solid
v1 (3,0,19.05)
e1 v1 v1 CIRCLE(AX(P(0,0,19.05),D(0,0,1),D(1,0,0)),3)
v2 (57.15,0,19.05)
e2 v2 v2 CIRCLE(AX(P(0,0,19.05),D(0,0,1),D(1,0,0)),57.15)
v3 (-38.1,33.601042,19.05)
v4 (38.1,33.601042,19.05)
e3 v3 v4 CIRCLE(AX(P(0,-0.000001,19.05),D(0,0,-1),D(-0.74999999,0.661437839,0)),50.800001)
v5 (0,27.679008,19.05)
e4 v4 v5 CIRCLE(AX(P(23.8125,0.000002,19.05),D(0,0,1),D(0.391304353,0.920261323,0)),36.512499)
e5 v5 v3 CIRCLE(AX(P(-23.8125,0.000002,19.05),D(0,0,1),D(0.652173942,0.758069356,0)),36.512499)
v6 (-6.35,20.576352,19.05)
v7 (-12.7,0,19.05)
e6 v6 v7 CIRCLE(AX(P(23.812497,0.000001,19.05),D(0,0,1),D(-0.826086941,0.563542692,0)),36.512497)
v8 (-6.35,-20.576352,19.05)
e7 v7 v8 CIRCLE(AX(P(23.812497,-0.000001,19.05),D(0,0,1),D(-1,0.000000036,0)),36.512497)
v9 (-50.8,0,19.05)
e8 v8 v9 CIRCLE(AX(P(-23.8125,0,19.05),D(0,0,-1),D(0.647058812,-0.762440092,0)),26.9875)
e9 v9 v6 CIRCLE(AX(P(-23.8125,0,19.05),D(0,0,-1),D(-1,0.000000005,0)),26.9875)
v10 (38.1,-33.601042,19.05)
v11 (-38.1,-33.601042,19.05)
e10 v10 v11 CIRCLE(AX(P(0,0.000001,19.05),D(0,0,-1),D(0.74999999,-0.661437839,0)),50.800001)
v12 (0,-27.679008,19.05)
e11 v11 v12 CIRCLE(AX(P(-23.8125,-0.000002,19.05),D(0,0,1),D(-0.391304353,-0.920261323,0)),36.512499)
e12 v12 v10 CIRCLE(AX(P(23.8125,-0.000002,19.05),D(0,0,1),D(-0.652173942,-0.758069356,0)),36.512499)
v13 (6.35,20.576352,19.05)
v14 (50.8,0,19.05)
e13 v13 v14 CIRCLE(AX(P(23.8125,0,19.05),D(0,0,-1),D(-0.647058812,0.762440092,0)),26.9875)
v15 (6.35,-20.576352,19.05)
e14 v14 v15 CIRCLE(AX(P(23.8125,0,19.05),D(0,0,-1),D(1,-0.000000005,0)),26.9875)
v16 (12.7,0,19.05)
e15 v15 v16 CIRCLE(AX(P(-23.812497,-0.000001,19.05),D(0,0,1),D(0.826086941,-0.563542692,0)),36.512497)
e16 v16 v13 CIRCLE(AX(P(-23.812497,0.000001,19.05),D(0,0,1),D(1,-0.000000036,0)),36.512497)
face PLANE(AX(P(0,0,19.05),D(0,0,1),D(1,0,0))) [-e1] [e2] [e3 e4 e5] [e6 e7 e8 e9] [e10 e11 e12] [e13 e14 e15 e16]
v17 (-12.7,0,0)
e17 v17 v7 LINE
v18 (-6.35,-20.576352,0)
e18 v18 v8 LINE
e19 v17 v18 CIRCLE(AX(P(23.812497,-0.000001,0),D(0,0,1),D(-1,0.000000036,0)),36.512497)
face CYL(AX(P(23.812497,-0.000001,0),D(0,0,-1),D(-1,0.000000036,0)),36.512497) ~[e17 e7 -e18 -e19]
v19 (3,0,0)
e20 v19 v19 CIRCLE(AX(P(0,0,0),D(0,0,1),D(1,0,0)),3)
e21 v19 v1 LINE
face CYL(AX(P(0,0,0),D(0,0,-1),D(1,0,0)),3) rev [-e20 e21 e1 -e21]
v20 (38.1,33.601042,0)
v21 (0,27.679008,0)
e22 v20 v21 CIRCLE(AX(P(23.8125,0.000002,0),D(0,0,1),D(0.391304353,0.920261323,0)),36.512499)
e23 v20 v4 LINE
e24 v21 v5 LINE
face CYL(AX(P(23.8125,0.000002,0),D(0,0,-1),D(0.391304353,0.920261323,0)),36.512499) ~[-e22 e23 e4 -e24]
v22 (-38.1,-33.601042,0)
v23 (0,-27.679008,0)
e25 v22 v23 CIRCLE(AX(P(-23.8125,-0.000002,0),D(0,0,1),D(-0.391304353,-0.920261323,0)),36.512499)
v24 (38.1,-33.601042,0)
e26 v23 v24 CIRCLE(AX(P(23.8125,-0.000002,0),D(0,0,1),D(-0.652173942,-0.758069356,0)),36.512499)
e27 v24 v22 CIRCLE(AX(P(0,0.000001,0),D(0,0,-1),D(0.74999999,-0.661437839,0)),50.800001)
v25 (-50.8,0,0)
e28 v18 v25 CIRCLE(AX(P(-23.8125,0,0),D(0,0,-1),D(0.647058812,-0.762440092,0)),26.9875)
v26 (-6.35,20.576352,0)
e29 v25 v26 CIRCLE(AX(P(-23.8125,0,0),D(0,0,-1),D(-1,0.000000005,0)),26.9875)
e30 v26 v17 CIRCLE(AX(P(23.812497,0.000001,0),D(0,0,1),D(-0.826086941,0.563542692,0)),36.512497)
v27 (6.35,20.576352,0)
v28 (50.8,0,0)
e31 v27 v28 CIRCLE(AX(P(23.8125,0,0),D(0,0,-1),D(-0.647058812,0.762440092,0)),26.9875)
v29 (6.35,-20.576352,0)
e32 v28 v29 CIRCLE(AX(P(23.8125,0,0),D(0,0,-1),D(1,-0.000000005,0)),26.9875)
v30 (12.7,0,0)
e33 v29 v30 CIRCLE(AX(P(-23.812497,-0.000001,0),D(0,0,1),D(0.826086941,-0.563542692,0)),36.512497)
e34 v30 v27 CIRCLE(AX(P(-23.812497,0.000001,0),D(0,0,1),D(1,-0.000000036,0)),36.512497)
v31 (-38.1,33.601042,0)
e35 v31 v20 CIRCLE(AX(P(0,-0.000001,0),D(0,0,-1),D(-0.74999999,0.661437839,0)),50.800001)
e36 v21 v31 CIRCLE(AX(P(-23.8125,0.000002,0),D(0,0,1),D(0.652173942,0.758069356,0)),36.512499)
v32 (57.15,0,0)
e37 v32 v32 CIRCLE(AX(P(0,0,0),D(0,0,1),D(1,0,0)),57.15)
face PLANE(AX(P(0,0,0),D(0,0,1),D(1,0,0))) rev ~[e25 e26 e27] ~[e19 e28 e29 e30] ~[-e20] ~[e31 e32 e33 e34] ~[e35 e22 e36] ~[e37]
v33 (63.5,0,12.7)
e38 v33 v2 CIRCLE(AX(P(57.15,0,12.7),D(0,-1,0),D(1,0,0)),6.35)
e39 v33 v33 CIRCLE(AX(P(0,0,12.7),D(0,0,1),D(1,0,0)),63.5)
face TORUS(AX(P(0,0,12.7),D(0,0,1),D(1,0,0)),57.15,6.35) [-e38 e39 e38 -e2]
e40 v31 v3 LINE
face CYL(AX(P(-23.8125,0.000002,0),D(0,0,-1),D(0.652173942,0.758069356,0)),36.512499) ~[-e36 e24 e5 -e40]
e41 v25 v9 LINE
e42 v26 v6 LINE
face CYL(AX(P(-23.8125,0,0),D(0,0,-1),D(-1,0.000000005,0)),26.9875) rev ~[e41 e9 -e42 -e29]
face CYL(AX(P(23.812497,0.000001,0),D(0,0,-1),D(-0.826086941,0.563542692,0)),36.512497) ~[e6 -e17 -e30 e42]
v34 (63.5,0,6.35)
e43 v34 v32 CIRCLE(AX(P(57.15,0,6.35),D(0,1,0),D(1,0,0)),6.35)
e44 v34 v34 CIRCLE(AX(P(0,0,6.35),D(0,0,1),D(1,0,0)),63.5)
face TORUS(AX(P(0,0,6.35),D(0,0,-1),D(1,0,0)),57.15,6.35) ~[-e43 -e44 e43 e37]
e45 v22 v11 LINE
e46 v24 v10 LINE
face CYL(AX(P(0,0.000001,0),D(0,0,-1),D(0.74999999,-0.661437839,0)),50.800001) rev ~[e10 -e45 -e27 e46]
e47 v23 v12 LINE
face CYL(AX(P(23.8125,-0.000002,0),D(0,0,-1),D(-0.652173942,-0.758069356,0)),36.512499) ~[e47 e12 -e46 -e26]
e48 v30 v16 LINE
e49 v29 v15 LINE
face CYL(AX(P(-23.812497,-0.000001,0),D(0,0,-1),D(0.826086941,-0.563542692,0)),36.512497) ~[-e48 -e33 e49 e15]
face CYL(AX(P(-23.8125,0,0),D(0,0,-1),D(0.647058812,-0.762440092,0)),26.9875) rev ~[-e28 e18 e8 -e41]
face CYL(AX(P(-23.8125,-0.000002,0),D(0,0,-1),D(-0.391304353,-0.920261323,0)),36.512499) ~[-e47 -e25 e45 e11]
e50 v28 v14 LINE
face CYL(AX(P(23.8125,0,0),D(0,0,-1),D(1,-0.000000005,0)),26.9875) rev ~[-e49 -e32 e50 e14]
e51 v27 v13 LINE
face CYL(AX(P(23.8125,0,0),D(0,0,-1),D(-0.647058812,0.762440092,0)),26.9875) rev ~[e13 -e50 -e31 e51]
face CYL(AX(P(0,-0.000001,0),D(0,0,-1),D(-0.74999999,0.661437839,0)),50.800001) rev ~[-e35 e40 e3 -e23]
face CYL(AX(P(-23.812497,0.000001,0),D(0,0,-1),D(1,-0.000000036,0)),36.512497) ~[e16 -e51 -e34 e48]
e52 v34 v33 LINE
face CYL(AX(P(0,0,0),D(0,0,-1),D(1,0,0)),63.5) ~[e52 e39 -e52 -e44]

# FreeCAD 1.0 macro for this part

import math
import FreeCAD as App
import Part
import Sketcher
from FreeCAD import Vector
Q = App.Units.Quantity


def edges_at(feature, points):
    """Names of the edges that pass closest to the given points."""
    edges = feature.Shape.Edges
    near = lambda p: min(range(len(edges)), key=lambda i: edges[i].distToShape(Part.Vertex(*p))[0])
    return sorted({f"Edge{near(p) + 1}" for p in points})

doc = App.newDocument("Part")
body = doc.addObject("PartDesign::Body", "Body")

# Sketch on XY plane
sketch1 = body.newObject("Sketcher::SketchObject", "Sketch")
sketch1.AttachmentSupport = (doc.getObject("XY_Plane"), [""])
sketch1.MapMode = "FlatFace"
sketch1.addGeometry([
    Part.Circle(Vector(0, 0, 0), Vector(0, 0, 1), 63.5),  # 0
    Part.ArcOfCircle(Part.Circle(Vector(23.8125, -0.000002, 0), Vector(0, 0, 1), 36.512499), math.radians(-130.705709), math.radians(-66.964316)),  # 1
    Part.ArcOfCircle(Part.Circle(Vector(0, 0.000001, 0), Vector(0, 0, 1), 50.800001), math.radians(-138.590377), math.radians(-41.409623)),  # 2
    Part.ArcOfCircle(Part.Circle(Vector(-23.8125, -0.000002, 0), Vector(0, 0, 1), 36.512499), math.radians(-113.035684), math.radians(-49.294291)),  # 3
    Part.ArcOfCircle(Part.Circle(Vector(-23.8125, 0, 0), Vector(0, 0, 1), 26.9875), math.radians(-180), math.radians(-49.679786)),  # 4
    Part.ArcOfCircle(Part.Circle(Vector(-23.8125, 0, 0), Vector(0, 0, 1), 26.9875), math.radians(49.679786), math.radians(180)),  # 5
    Part.ArcOfCircle(Part.Circle(Vector(23.812497, 0.000001, 0), Vector(0, 0, 1), 36.512497), math.radians(145.698846), math.radians(180.000002)),  # 6
    Part.ArcOfCircle(Part.Circle(Vector(23.812497, -0.000001, 0), Vector(0, 0, 1), 36.512497), math.radians(179.999998), math.radians(214.301154)),  # 7
    Part.Circle(Vector(0, 0, 0), Vector(0, 0, 1), 3),  # 8
    Part.ArcOfCircle(Part.Circle(Vector(23.8125, 0, 0), Vector(0, 0, 1), 26.9875), math.radians(-130.320214), math.radians(0)),  # 9
    Part.ArcOfCircle(Part.Circle(Vector(-23.812497, -0.000001, 0), Vector(0, 0, 1), 36.512497), math.radians(-34.301154), math.radians(0.000002)),  # 10
    Part.ArcOfCircle(Part.Circle(Vector(-23.812497, 0.000001, 0), Vector(0, 0, 1), 36.512497), math.radians(-0.000002), math.radians(34.301154)),  # 11
    Part.ArcOfCircle(Part.Circle(Vector(23.8125, 0, 0), Vector(0, 0, 1), 26.9875), math.radians(0), math.radians(130.320214)),  # 12
    Part.ArcOfCircle(Part.Circle(Vector(0, -0.000001, 0), Vector(0, 0, 1), 50.800001), math.radians(41.409623), math.radians(138.590377)),  # 13
    Part.ArcOfCircle(Part.Circle(Vector(23.8125, 0.000002, 0), Vector(0, 0, 1), 36.512499), math.radians(66.964316), math.radians(130.705709)),  # 14
    Part.ArcOfCircle(Part.Circle(Vector(-23.8125, 0.000002, 0), Vector(0, 0, 1), 36.512499), math.radians(49.294291), math.radians(113.035684)),  # 15
], False)
sketch1.addConstraint([
    Sketcher.Constraint("Coincident", 1, 2, 2, 2),
    Sketcher.Constraint("Coincident", 2, 1, 3, 1),
    Sketcher.Constraint("Coincident", 3, 2, 1, 1),
    Sketcher.Constraint("Tangent", 4, 1, 5, 2),
    Sketcher.Constraint("Coincident", 5, 1, 6, 1),
    Sketcher.Constraint("Tangent", 6, 2, 7, 1),
    Sketcher.Constraint("Coincident", 7, 2, 4, 2),
    Sketcher.Constraint("Coincident", 9, 1, 10, 1),
    Sketcher.Constraint("Tangent", 10, 2, 11, 1),
    Sketcher.Constraint("Coincident", 11, 2, 12, 2),
    Sketcher.Constraint("Tangent", 12, 1, 9, 2),
    Sketcher.Constraint("Coincident", 13, 1, 14, 1),
    Sketcher.Constraint("Coincident", 14, 2, 15, 1),
    Sketcher.Constraint("Coincident", 15, 2, 13, 2),
    Sketcher.Constraint("Coincident", 0, 3, -1, 1),
    Sketcher.Constraint("Coincident", 2, 3, -1, 1),
    Sketcher.Constraint("Coincident", 8, 3, -1, 1),
    Sketcher.Constraint("Coincident", 13, 3, -1, 1),
    Sketcher.Constraint("Coincident", 4, 3, 3, 3),
    Sketcher.Constraint("Coincident", 6, 3, 1, 3),
    Sketcher.Constraint("Coincident", 9, 3, 1, 3),
    Sketcher.Constraint("Coincident", 10, 3, 3, 3),
    Sketcher.Constraint("Coincident", 14, 3, 1, 3),
    Sketcher.Constraint("Coincident", 15, 3, 3, 3),
    Sketcher.Constraint("Equal", 1, 3),
    Sketcher.Constraint("Equal", 4, 5),
    Sketcher.Constraint("Equal", 6, 7),
    Sketcher.Constraint("Equal", 5, 9),
    Sketcher.Constraint("Equal", 7, 10),
    Sketcher.Constraint("Equal", 10, 11),
    Sketcher.Constraint("Equal", 9, 12),
    Sketcher.Constraint("Equal", 2, 13),
    Sketcher.Constraint("Equal", 3, 14),
    Sketcher.Constraint("Equal", 14, 15),
    Sketcher.Constraint("Symmetric", 1, 3, 3, 3, -1, 1),
    Sketcher.Constraint("PointOnObject", 1, 3, -1),
    Sketcher.Constraint("PointOnObject", 4, 1, -1),
    Sketcher.Constraint("PointOnObject", 6, 2, -1),
    Sketcher.Constraint("PointOnObject", 10, 2, -1),
    Sketcher.Constraint("PointOnObject", 12, 1, -1),
    Sketcher.Constraint("Diameter", 0, Q("5 in")),
    Sketcher.Constraint("Radius", 2, Q("2 in")),
    Sketcher.Constraint("DistanceX", 4, 1, -1, 1, Q("2 in")),
    Sketcher.Constraint("Radius", 1, Q("1.4375 in")),
    Sketcher.Constraint("Radius", 4, Q("1.0625 in")),
    Sketcher.Constraint("Radius", 6, Q("1.4374999 in")),
    Sketcher.Constraint("Diameter", 8, Q("6 mm")),
])
pad1 = body.newObject("PartDesign::Pad", "Pad")
pad1.Profile = sketch1
pad1.Length = Q("0.75 in")
doc.recompute()

fillet = body.newObject("PartDesign::Fillet", "Fillet")
fillet.Base = (pad1, edges_at(pad1, [(63.5, 0, 9.525), (-63.5, 0, 0), (-63.5, 0, 19.05)]))
fillet.Radius = Q("0.25 in")

doc.recompute()
